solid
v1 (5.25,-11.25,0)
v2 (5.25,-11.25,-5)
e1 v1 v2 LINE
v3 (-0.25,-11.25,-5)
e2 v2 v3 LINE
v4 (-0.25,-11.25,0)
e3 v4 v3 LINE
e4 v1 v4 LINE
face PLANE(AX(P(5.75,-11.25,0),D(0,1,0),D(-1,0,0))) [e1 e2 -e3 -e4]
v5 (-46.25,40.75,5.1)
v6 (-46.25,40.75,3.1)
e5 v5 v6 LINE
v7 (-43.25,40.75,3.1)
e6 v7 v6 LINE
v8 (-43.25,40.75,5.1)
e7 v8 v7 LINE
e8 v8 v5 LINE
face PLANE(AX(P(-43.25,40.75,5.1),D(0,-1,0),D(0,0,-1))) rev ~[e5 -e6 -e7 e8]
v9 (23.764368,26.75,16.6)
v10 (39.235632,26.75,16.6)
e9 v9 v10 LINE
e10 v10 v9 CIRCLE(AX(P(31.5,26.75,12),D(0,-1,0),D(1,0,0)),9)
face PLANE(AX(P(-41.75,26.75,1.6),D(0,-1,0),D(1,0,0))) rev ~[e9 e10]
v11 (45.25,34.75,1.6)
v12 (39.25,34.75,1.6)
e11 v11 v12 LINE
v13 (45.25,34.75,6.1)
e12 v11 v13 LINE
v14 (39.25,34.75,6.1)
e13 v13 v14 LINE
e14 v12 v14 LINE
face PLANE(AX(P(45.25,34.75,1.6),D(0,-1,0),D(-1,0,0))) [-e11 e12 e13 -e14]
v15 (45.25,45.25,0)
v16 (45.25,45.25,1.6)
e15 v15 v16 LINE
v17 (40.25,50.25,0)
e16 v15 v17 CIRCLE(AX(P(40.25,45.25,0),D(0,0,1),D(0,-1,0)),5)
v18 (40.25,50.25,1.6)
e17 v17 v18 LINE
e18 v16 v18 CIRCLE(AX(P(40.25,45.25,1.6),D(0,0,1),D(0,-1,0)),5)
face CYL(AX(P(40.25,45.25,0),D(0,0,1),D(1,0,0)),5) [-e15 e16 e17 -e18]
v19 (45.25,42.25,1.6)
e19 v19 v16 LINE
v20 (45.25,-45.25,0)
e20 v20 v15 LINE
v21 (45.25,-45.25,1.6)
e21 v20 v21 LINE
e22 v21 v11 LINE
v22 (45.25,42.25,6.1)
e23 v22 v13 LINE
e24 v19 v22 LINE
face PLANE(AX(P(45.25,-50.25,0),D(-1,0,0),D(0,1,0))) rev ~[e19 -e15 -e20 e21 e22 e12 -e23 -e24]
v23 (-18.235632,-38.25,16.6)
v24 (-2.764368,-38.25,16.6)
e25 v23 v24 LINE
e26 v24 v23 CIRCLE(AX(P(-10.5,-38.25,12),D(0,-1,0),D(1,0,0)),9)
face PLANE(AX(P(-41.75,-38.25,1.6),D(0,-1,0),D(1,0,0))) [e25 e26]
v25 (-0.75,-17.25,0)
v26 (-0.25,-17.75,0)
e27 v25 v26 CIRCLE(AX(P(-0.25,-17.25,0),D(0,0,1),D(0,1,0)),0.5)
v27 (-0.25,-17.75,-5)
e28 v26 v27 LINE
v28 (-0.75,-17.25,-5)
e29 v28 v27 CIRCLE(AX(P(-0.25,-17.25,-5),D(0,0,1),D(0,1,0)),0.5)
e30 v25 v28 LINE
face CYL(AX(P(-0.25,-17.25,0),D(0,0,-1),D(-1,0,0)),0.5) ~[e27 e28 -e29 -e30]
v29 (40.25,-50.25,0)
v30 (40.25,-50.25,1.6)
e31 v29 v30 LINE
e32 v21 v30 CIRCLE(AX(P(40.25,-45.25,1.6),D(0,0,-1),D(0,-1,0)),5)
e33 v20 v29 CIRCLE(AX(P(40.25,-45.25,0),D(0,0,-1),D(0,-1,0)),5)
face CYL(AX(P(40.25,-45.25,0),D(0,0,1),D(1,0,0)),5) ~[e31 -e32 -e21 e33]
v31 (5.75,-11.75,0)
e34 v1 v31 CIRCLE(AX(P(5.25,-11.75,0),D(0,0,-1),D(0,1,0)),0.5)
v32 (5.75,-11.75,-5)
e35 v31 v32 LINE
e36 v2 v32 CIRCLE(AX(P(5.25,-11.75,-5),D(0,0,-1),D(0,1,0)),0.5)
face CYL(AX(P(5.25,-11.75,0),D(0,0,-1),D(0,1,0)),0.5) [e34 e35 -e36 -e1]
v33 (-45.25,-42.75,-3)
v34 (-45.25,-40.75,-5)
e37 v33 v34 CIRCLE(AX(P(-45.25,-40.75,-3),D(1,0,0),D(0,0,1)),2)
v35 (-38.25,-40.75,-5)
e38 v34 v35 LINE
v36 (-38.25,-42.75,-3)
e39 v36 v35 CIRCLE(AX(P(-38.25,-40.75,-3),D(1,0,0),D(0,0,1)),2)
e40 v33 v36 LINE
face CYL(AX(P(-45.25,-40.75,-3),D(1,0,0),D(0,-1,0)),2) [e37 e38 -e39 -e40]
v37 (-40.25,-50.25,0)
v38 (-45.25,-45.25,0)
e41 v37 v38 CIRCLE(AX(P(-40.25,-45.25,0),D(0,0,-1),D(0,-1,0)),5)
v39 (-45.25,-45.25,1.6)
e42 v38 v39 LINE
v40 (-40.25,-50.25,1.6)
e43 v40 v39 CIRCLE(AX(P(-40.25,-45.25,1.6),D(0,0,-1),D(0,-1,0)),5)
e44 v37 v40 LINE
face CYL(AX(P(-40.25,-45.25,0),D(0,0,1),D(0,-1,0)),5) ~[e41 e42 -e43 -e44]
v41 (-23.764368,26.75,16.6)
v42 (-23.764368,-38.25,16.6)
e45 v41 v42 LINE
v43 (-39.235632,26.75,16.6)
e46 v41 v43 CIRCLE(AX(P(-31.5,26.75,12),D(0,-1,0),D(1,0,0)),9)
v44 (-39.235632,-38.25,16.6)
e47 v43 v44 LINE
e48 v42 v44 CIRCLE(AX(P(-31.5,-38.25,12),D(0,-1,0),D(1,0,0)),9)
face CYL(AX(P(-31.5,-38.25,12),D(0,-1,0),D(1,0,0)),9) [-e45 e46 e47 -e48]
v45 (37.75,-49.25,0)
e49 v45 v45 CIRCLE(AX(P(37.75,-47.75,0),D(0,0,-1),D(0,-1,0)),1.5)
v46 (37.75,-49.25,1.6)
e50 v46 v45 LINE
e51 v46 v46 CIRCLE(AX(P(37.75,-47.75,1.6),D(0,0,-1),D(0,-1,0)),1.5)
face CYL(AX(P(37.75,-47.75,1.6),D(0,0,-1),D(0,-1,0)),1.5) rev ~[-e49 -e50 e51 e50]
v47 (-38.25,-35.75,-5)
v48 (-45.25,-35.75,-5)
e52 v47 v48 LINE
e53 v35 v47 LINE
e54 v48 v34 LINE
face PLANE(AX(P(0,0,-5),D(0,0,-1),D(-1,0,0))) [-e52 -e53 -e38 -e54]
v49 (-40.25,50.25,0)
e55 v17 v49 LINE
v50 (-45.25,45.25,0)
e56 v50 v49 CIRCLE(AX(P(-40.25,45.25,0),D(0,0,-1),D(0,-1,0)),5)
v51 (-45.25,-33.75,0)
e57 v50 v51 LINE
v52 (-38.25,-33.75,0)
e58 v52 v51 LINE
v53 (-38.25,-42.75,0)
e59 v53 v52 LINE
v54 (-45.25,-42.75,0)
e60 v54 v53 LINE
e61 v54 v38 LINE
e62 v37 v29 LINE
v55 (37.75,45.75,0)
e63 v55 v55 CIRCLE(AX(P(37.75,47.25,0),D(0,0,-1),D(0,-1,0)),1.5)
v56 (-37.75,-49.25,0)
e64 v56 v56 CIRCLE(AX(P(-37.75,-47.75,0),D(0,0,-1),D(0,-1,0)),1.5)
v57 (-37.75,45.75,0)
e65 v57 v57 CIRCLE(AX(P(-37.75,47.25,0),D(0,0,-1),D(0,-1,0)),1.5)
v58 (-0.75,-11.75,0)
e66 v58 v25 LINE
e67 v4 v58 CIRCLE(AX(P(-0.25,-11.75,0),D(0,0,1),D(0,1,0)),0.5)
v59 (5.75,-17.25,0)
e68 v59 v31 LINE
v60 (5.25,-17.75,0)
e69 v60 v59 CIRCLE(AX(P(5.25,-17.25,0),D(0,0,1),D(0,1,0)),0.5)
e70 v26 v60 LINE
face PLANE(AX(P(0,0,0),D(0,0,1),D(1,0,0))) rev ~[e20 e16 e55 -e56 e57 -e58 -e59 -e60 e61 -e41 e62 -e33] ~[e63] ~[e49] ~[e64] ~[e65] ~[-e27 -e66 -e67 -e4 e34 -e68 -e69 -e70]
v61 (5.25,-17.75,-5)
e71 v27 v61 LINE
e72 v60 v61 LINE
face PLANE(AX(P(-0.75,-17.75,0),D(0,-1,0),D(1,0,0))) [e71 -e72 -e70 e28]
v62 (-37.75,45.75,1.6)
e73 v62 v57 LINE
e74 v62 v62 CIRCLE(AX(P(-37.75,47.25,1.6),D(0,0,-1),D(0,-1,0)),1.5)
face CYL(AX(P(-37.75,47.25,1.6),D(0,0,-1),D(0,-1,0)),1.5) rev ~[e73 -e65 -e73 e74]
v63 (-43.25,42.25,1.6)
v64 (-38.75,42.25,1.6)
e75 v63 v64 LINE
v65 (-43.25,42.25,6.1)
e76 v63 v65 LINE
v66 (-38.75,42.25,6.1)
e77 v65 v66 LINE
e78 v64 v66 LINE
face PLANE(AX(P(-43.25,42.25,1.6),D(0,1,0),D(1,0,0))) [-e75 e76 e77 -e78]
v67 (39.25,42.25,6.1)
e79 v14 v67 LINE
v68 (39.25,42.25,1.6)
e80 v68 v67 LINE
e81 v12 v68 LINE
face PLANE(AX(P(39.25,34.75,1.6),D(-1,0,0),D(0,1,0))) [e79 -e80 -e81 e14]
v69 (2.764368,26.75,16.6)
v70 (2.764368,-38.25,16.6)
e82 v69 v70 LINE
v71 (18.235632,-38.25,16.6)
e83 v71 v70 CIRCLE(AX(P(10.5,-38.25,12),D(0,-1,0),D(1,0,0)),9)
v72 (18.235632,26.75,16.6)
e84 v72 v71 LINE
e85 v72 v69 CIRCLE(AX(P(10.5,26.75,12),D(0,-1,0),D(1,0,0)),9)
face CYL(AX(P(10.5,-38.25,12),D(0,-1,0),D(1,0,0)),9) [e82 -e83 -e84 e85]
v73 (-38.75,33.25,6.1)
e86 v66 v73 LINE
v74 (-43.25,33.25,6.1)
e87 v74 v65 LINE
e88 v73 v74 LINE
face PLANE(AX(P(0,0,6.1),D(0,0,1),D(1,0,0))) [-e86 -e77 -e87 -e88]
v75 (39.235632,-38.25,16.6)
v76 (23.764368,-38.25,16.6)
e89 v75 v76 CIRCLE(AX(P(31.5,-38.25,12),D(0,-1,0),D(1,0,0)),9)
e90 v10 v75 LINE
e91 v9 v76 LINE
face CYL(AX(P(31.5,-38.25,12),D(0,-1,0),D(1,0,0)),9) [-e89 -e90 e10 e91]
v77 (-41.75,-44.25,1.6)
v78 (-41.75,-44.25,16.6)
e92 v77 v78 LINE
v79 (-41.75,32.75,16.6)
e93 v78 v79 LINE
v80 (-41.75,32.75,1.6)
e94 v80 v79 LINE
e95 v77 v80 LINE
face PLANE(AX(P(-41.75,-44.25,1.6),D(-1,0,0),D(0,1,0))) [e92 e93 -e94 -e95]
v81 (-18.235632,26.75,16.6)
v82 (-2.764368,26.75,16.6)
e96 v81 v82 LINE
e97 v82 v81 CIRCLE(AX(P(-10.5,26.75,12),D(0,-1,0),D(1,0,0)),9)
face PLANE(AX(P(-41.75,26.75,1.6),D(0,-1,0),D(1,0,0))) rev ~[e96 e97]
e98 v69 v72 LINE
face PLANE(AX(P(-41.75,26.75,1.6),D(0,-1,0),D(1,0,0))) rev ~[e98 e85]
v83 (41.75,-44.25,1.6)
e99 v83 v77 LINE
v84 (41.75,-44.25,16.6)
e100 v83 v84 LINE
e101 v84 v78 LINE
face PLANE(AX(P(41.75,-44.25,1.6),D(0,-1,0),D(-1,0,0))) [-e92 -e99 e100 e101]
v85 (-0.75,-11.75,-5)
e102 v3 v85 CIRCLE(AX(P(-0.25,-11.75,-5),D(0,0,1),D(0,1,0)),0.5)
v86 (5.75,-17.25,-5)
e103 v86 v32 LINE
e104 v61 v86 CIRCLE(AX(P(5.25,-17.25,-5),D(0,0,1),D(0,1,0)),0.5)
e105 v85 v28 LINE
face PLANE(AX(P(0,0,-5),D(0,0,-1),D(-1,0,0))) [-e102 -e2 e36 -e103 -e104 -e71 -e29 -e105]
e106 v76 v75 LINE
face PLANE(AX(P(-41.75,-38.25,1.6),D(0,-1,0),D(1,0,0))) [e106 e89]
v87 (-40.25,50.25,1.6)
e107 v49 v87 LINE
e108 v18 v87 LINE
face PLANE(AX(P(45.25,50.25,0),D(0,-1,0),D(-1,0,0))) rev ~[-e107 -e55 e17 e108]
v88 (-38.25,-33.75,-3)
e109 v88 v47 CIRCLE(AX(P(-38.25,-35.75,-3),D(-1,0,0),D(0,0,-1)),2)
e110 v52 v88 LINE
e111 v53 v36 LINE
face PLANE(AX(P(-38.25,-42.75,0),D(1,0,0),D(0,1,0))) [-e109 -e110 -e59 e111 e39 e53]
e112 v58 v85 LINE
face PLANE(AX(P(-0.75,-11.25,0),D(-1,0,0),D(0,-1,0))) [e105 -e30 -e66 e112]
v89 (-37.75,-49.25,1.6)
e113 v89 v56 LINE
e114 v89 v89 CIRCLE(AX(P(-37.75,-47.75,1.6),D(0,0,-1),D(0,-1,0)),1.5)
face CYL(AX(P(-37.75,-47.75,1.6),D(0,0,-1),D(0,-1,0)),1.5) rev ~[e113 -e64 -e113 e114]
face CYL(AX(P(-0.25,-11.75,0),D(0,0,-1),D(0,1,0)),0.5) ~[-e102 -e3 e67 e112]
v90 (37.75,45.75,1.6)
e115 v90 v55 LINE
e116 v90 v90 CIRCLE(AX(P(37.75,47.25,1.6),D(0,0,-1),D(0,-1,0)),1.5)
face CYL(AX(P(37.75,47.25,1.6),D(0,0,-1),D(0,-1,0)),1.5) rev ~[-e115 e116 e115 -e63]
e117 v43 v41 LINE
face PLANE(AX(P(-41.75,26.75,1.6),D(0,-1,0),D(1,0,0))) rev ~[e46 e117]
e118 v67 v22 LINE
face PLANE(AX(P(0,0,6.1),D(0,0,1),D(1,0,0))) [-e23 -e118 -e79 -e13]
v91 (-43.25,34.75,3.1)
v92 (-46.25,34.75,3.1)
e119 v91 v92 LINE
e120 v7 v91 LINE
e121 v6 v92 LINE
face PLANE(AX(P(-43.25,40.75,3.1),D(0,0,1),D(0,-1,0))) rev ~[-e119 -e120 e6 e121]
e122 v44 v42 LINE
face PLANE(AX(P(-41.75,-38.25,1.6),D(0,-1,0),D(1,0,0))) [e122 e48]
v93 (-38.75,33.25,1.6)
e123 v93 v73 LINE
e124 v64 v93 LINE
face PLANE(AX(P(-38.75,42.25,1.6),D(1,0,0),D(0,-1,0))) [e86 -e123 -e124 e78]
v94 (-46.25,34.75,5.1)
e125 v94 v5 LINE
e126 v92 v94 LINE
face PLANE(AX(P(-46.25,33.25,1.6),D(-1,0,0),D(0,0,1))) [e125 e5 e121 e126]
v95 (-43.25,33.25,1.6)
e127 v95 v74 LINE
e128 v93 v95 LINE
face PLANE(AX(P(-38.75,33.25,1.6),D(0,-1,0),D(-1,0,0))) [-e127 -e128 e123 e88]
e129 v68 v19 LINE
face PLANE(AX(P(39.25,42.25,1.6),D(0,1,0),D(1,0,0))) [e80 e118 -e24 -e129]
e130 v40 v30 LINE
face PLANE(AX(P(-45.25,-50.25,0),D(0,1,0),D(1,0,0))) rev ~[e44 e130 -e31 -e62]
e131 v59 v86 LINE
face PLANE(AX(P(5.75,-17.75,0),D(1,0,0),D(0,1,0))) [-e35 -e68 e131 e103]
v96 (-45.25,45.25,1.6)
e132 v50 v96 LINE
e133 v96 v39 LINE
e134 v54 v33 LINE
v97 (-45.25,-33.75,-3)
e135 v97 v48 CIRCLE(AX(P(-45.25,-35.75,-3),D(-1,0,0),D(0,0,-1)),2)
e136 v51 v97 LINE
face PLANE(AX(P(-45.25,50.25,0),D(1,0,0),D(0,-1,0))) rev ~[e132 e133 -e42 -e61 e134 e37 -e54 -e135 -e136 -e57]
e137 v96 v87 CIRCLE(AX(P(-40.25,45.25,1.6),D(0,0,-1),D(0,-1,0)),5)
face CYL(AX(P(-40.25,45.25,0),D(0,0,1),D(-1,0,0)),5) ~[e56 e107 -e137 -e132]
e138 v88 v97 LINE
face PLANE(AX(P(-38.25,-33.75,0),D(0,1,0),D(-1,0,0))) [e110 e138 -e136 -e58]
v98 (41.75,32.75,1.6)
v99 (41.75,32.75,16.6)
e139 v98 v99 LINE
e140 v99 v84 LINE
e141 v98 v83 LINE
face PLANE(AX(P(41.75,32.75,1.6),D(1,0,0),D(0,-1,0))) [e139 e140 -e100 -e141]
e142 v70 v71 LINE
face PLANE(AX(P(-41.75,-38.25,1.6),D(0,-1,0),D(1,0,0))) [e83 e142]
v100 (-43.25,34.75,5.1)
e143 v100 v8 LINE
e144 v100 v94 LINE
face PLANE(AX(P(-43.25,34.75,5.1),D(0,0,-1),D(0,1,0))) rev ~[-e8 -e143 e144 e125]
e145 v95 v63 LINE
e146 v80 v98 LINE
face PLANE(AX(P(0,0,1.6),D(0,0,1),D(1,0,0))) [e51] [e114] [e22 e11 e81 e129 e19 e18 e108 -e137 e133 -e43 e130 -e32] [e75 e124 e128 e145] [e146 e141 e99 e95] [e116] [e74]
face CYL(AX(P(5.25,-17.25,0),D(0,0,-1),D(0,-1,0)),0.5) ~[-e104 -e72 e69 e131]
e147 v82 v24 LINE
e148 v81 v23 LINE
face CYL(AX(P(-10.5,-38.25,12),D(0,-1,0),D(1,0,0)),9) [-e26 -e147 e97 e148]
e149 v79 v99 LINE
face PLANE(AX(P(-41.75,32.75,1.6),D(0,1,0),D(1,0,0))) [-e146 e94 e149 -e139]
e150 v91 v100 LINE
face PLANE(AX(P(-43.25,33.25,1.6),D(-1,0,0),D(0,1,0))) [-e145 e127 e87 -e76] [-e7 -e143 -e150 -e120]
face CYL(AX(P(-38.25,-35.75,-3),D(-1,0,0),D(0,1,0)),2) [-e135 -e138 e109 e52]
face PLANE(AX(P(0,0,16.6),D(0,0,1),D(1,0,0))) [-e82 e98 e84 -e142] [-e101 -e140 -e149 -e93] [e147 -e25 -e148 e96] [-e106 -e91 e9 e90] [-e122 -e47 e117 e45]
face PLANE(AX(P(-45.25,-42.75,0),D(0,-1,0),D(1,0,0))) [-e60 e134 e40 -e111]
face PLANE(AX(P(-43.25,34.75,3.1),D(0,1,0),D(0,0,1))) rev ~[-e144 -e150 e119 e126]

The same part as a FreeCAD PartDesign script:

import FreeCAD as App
import Part
import Sketcher


def edges_at(feature, points):
    """Names of the edges that pass closest to the given points."""
    edges = feature.Shape.Edges
    near = lambda p: min(range(len(edges)), key=lambda i: edges[i].distToShape(Part.Vertex(*p))[0])
    return sorted({f"Edge{near(p) + 1}" for p in points})


def add_polygon(sketch, points):
    """Adds a closed chain of lines whose ends are joined by coincident constraints."""
    first, n = sketch.GeometryCount, len(points)
    for a, b in zip(points, points[1:] + points[:1]):
        sketch.addGeometry(Part.LineSegment(App.Vector(*a, 0), App.Vector(*b, 0)), False)
    for i in range(n):
        sketch.addConstraint(Sketcher.Constraint("Coincident", first + i, 2, first + (i + 1) % n, 1))

doc = App.newDocument("Part")
body = doc.addObject("PartDesign::Body", "Body")

sketch1 = body.newObject("Sketcher::SketchObject", "Sketch")
sketch1.AttachmentSupport = (doc.getObject("XY_Plane"), [""])
sketch1.MapMode = "FlatFace"
add_polygon(sketch1, [(45.25, -50.25), (45.25, 50.25), (-45.25, 50.25), (-45.25, -50.25)])
sketch1.addConstraint(Sketcher.Constraint("Vertical", 0))
sketch1.addConstraint(Sketcher.Constraint("Horizontal", 1))
sketch1.addConstraint(Sketcher.Constraint("Vertical", 2))
sketch1.addConstraint(Sketcher.Constraint("Horizontal", 3))
sketch1.addConstraint(Sketcher.Constraint("Symmetric", 0, 2, 2, 2, -1, 1))
sketch1.addConstraint(Sketcher.Constraint("DistanceX", 1, 2, 1, 1, 90.5))
sketch1.addConstraint(Sketcher.Constraint("DistanceY", 0, 1, 0, 2, 100.5))
pad1 = body.newObject("PartDesign::Pad", "Pad")
pad1.Profile = sketch1
pad1.Length = 1.6
doc.recompute()

fillet = body.newObject("PartDesign::Fillet", "Fillet")
fillet.Base = (pad1, edges_at(pad1, [
    (45.25, 50.25, 0.8),
    (-45.25, 50.25, 0.8),
    (45.25, -50.25, 0.8),
    (-45.25, -50.25, 0.8),
]))
fillet.Radius = 5

sketch2 = body.newObject("Sketcher::SketchObject", "Sketch001")
sketch2.AttachmentSupport = (doc.getObject("XY_Plane"), [""])
sketch2.MapMode = "FlatFace"
add_polygon(sketch2, [(-0.75, -11.25), (5.75, -11.25), (5.75, -17.75), (-0.75, -17.75)])
sketch2.addConstraint(Sketcher.Constraint("Horizontal", 0))
sketch2.addConstraint(Sketcher.Constraint("Vertical", 1))
sketch2.addConstraint(Sketcher.Constraint("Horizontal", 2))
sketch2.addConstraint(Sketcher.Constraint("Vertical", 3))
sketch2.addConstraint(Sketcher.Constraint("Equal", 2, 1))
sketch2.addConstraint(Sketcher.Constraint("DistanceX", 0, 1, 0, 2, 6.5))
sketch2.addConstraint(Sketcher.Constraint("DistanceX", -1, 1, 0, 2, 5.75))
sketch2.addConstraint(Sketcher.Constraint("DistanceY", 0, 2, -1, 1, 11.25))
pad2 = body.newObject("PartDesign::Pad", "Pad001")
pad2.Profile = sketch2
pad2.Length = 5
pad2.Reversed = True
doc.recompute()

fillet2 = body.newObject("PartDesign::Fillet", "Fillet001")
fillet2.Base = (pad2, edges_at(pad2, [
    (-0.75, -11.25, -2.5),
    (-0.75, -17.75, -2.5),
    (5.75, -17.75, -2.5),
    (5.75, -11.25, -2.5),
]))
fillet2.Radius = 0.5

sketch3 = body.newObject("Sketcher::SketchObject", "Sketch002")
sketch3.AttachmentSupport = (doc.getObject("XY_Plane"), [""])
sketch3.MapMode = "FlatFace"
add_polygon(sketch3, [(-45.25, -33.75), (-38.25, -33.75), (-38.25, -42.75), (-45.25, -42.75)])
sketch3.addConstraint(Sketcher.Constraint("Horizontal", 0))
sketch3.addConstraint(Sketcher.Constraint("Vertical", 1))
sketch3.addConstraint(Sketcher.Constraint("Horizontal", 2))
sketch3.addConstraint(Sketcher.Constraint("Vertical", 3))
sketch3.addConstraint(Sketcher.Constraint("DistanceX", 0, 1, 0, 2, 7.0))
sketch3.addConstraint(Sketcher.Constraint("DistanceY", 1, 2, 1, 1, 9.0))
sketch3.addConstraint(Sketcher.Constraint("DistanceX", 0, 2, -1, 1, 38.25))
sketch3.addConstraint(Sketcher.Constraint("DistanceY", 0, 2, -1, 1, 33.75))
pad3 = body.newObject("PartDesign::Pad", "Pad002")
pad3.Profile = sketch3
pad3.Length = 5
pad3.Reversed = True
doc.recompute()

fillet3 = body.newObject("PartDesign::Fillet", "Fillet002")
fillet3.Base = (pad3, edges_at(pad3, [(-41.75, -33.75, -5), (-41.75, -42.75, -5)]))
fillet3.Radius = 2

sketch4 = body.newObject("Sketcher::SketchObject", "Sketch003")
sketch4.AttachmentSupport = (doc.getObject("XY_Plane"), [""])
sketch4.MapMode = "FlatFace"
sketch4.AttachmentOffset = App.Placement(App.Vector(0, 0, 1.6), App.Rotation())
add_polygon(sketch4, [(45.25, 42.25), (39.25, 42.25), (39.25, 34.75), (45.25, 34.75)])
add_polygon(sketch4, [(-38.75, 42.25), (-43.25, 42.25), (-43.25, 33.25), (-38.75, 33.25)])
sketch4.addConstraint(Sketcher.Constraint("Horizontal", 0))
sketch4.addConstraint(Sketcher.Constraint("Vertical", 1))
sketch4.addConstraint(Sketcher.Constraint("Horizontal", 2))
sketch4.addConstraint(Sketcher.Constraint("Vertical", 3))
sketch4.addConstraint(Sketcher.Constraint("Horizontal", 4))
sketch4.addConstraint(Sketcher.Constraint("Vertical", 5))
sketch4.addConstraint(Sketcher.Constraint("Horizontal", 6))
sketch4.addConstraint(Sketcher.Constraint("Vertical", 7))
sketch4.addConstraint(Sketcher.Constraint("Horizontal", 3, 2, 4, 2))
sketch4.addConstraint(Sketcher.Constraint("DistanceX", 0, 2, 0, 1, 6.0))
sketch4.addConstraint(Sketcher.Constraint("DistanceY", 5, 2, 5, 1, 9.0))
sketch4.addConstraint(Sketcher.Constraint("DistanceX", 4, 2, 4, 1, 4.5))
sketch4.addConstraint(Sketcher.Constraint("DistanceY", 1, 2, 1, 1, 7.5))
sketch4.addConstraint(Sketcher.Constraint("DistanceX", 6, 2, 1, 2, 78.0))
sketch4.addConstraint(Sketcher.Constraint("DistanceX", -1, 1, 0, 2, 39.25))
sketch4.addConstraint(Sketcher.Constraint("DistanceY", -1, 1, 0, 2, 42.25))
pad4 = body.newObject("PartDesign::Pad", "Pad003")
pad4.Profile = sketch4
pad4.Length = 4.5

sketch5 = body.newObject("Sketcher::SketchObject", "Sketch004")
sketch5.AttachmentSupport = (doc.getObject("YZ_Plane"), [""])
sketch5.MapMode = "FlatFace"
sketch5.AttachmentOffset = App.Placement(App.Vector(0, 0, -43.25), App.Rotation())
add_polygon(sketch5, [(40.75, 3.1), (34.75, 3.1), (34.75, 5.1), (40.75, 5.1)])
sketch5.addConstraint(Sketcher.Constraint("Horizontal", 0))
sketch5.addConstraint(Sketcher.Constraint("Vertical", 1))
sketch5.addConstraint(Sketcher.Constraint("Horizontal", 2))
sketch5.addConstraint(Sketcher.Constraint("Vertical", 3))
sketch5.addConstraint(Sketcher.Constraint("DistanceX", 0, 2, 0, 1, 6.0))
sketch5.addConstraint(Sketcher.Constraint("DistanceY", 1, 1, 1, 2, 2.0))
sketch5.addConstraint(Sketcher.Constraint("DistanceY", -1, 1, 0, 2, 3.1))
sketch5.addConstraint(Sketcher.Constraint("DistanceX", -1, 1, 0, 2, 34.75))
pad5 = body.newObject("PartDesign::Pad", "Pad004")
pad5.Profile = sketch5
pad5.Length = 3
pad5.Reversed = True

sketch6 = body.newObject("Sketcher::SketchObject", "Sketch005")
sketch6.AttachmentSupport = (doc.getObject("XY_Plane"), [""])
sketch6.MapMode = "FlatFace"
sketch6.AttachmentOffset = App.Placement(App.Vector(0, 0, 1.6), App.Rotation())
add_polygon(sketch6, [(41.75, 32.75), (-41.75, 32.75), (-41.75, -44.25), (41.75, -44.25)])
sketch6.addConstraint(Sketcher.Constraint("Horizontal", 0))
sketch6.addConstraint(Sketcher.Constraint("Vertical", 1))
sketch6.addConstraint(Sketcher.Constraint("Horizontal", 2))
sketch6.addConstraint(Sketcher.Constraint("Vertical", 3))
sketch6.addConstraint(Sketcher.Constraint("DistanceY", 1, 2, 1, 1, 77.0))
sketch6.addConstraint(Sketcher.Constraint("DistanceX", 0, 2, 0, 1, 83.5))
sketch6.addConstraint(Sketcher.Constraint("DistanceX", 0, 2, -1, 1, 41.75))
sketch6.addConstraint(Sketcher.Constraint("DistanceY", -1, 1, 0, 2, 32.75))
pad6 = body.newObject("PartDesign::Pad", "Pad005")
pad6.Profile = sketch6
pad6.Length = 15

sketch7 = body.newObject("Sketcher::SketchObject", "Sketch006")
sketch7.AttachmentSupport = (doc.getObject("XZ_Plane"), [""])
sketch7.MapMode = "FlatFace"
sketch7.AttachmentOffset = App.Placement(App.Vector(0, 0, 38.25), App.Rotation())
sketch7.addGeometry(Part.Circle(App.Vector(-31.5, 12, 0), App.Vector(0, 0, 1), 9), False)
sketch7.addGeometry(Part.Circle(App.Vector(-10.5, 12, 0), App.Vector(0, 0, 1), 9), False)
sketch7.addGeometry(Part.Circle(App.Vector(10.5, 12, 0), App.Vector(0, 0, 1), 9), False)
sketch7.addGeometry(Part.Circle(App.Vector(31.5, 12, 0), App.Vector(0, 0, 1), 9), False)
sketch7.addConstraint(Sketcher.Constraint("Equal", 0, 1))
sketch7.addConstraint(Sketcher.Constraint("Equal", 1, 2))
sketch7.addConstraint(Sketcher.Constraint("Equal", 2, 3))
sketch7.addConstraint(Sketcher.Constraint("Symmetric", 1, 3, 2, 3, -2))
sketch7.addConstraint(Sketcher.Constraint("Symmetric", 0, 3, 3, 3, -2))
sketch7.addConstraint(Sketcher.Constraint("Horizontal", 0, 3, 1, 3))
sketch7.addConstraint(Sketcher.Constraint("Diameter", 0, 18.0))
sketch7.addConstraint(Sketcher.Constraint("DistanceX", 0, 3, 1, 3, 21.0))
sketch7.addConstraint(Sketcher.Constraint("DistanceX", 1, 3, 2, 3, 21.0))
sketch7.addConstraint(Sketcher.Constraint("DistanceY", -1, 1, 0, 3, 12.0))
pad7 = body.newObject("PartDesign::Pad", "Pad006")
pad7.Profile = sketch7
pad7.Length = 65
pad7.Reversed = True

sketch8 = body.newObject("Sketcher::SketchObject", "Sketch007")
sketch8.AttachmentSupport = (doc.getObject("XY_Plane"), [""])
sketch8.MapMode = "FlatFace"
sketch8.AttachmentOffset = App.Placement(App.Vector(0, 0, 1.6), App.Rotation())
sketch8.addGeometry(Part.Circle(App.Vector(-37.75, 47.25, 0), App.Vector(0, 0, 1), 1.5), False)
sketch8.addGeometry(Part.Circle(App.Vector(37.75, 47.25, 0), App.Vector(0, 0, 1), 1.5), False)
sketch8.addGeometry(Part.Circle(App.Vector(-37.75, -47.75, 0), App.Vector(0, 0, 1), 1.5), False)
sketch8.addGeometry(Part.Circle(App.Vector(37.75, -47.75, 0), App.Vector(0, 0, 1), 1.5), False)
sketch8.addConstraint(Sketcher.Constraint("Equal", 0, 1))
sketch8.addConstraint(Sketcher.Constraint("Equal", 1, 2))
sketch8.addConstraint(Sketcher.Constraint("Equal", 2, 3))
sketch8.addConstraint(Sketcher.Constraint("Symmetric", 0, 3, 1, 3, -2))
sketch8.addConstraint(Sketcher.Constraint("Symmetric", 2, 3, 3, 3, -2))
sketch8.addConstraint(Sketcher.Constraint("Vertical", 0, 3, 2, 3))
sketch8.addConstraint(Sketcher.Constraint("Diameter", 0, 3.0))
sketch8.addConstraint(Sketcher.Constraint("DistanceY", 2, 3, 0, 3, 95.0))
sketch8.addConstraint(Sketcher.Constraint("DistanceX", 0, 3, 1, 3, 75.5))
sketch8.addConstraint(Sketcher.Constraint("DistanceY", -1, 1, 0, 3, 47.25))
doc.recompute()
hole = body.newObject("PartDesign::Hole", "Hole")
hole.Profile = sketch8
hole.ThreadType = "None"
hole.Diameter = 3
hole.DepthType = "Dimension"
hole.Depth = 1.6
hole.DrillPoint = "Flat"

doc.recompute()
